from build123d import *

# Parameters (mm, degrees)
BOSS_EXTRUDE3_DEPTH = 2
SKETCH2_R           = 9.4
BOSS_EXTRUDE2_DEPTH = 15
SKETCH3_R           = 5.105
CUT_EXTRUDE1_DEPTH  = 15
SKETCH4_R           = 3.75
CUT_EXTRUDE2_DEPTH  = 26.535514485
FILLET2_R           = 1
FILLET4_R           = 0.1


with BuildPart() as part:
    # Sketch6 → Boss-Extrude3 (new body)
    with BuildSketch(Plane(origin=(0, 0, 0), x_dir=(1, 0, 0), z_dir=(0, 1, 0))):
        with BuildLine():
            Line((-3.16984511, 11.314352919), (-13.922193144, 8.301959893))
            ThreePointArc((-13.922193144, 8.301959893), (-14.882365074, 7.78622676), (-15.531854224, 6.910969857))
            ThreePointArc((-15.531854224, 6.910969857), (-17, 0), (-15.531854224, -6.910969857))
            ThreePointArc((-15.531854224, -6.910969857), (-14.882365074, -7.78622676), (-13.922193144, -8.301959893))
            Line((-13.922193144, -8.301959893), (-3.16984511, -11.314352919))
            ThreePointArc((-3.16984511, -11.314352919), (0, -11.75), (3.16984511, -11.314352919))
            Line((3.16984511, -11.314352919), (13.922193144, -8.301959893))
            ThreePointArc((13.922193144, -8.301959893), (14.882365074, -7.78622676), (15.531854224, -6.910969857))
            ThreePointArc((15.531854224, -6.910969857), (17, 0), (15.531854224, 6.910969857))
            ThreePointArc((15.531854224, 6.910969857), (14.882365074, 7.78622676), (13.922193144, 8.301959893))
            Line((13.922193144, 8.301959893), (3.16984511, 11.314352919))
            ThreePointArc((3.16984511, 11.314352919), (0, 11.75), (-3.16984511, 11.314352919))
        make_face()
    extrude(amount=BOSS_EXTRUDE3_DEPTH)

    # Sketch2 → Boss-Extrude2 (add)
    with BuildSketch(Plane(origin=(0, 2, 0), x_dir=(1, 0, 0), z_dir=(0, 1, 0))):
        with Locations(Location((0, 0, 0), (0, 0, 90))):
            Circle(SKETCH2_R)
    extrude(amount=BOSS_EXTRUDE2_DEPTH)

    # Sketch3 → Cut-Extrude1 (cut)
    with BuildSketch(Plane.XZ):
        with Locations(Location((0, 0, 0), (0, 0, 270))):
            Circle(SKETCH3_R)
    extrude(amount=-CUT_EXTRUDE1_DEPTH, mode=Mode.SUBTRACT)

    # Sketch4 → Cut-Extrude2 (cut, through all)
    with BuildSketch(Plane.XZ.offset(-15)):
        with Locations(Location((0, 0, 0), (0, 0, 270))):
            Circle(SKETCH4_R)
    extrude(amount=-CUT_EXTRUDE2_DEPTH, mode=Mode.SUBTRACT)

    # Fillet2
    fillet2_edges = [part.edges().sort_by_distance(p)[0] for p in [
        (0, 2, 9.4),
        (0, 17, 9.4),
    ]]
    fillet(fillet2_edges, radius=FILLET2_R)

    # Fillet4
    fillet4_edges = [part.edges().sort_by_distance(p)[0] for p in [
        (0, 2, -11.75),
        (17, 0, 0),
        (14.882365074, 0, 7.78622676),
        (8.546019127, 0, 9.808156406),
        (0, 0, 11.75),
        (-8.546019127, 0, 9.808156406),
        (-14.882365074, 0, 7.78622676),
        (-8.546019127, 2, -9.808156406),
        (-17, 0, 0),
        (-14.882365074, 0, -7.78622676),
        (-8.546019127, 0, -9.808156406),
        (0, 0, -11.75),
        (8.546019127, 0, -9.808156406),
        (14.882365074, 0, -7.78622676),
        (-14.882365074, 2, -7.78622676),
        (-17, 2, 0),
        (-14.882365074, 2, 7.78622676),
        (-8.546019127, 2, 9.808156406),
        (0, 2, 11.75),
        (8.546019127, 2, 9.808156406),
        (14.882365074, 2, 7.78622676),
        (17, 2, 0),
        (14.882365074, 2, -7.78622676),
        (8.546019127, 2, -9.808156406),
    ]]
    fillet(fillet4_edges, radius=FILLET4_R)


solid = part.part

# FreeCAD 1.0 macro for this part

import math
import FreeCAD as App
import Part
import Sketcher
Q = App.Units.Quantity


def edges_at(feature, points):
    """Names of the edges that pass closest to the given points."""
    edges = feature.Shape.Edges
    near = lambda p: min(range(len(edges)), key=lambda i: edges[i].distToShape(Part.Vertex(*p))[0])
    return sorted({f"Edge{near(p) + 1}" for p in points})

doc = App.newDocument("Part")
params = doc.addObject("Spreadsheet::Sheet", "Params")
for row, (alias, value) in enumerate([
    ("sketch1_radius", "17 mm"),
    ("sketch1_radius2", "2.5 mm"),
    ("sketch1_radius3", "11.75 mm"),
    ("pad1_length", "2 mm"),
    ("sketch2_diameter", "18.8 mm"),
    ("pad2_length", "15 mm"),
    ("sketch3_diameter", "10.21 mm"),
    ("pocket1_length", "15 mm"),
    ("sketch4_diameter", "7.5 mm"),
    ("fillet_radius", "1 mm"),
    ("fillet2_radius", "0.1 mm"),
], start=1):
    params.set(f"A{row}", alias)
    params.set(f"B{row}", "=" + value)
    params.setAlias(f"B{row}", alias)

body = doc.addObject("PartDesign::Body", "Body")

# Sketch on XZ plane
sketch1 = body.newObject("Sketcher::SketchObject", "Sketch")
sketch1.AttachmentSupport = (doc.getObject("XZ_Plane"), [""])
sketch1.MapMode = "FlatFace"
sketch1.addGeometry(Part.LineSegment(App.Vector(-3.2, -11.3, 0), App.Vector(-13.9, -8.3, 0)), False)
sketch1.addGeometry(Part.ArcOfCircle(Part.Circle(App.Vector(-13.2, -5.9, 0), App.Vector(0, 0, 1), 2.5), math.radians(-156), math.radians(-106)), False)
sketch1.addGeometry(Part.ArcOfCircle(Part.Circle(App.Vector(0, 0, 0), App.Vector(0, 0, 1), 17), math.radians(156), math.radians(204)), False)
sketch1.addGeometry(Part.ArcOfCircle(Part.Circle(App.Vector(-13.2, 5.9, 0), App.Vector(0, 0, 1), 2.5), math.radians(106), math.radians(156)), False)
sketch1.addGeometry(Part.LineSegment(App.Vector(-13.9, 8.3, 0), App.Vector(-3.2, 11.3, 0)), False)
sketch1.addGeometry(Part.ArcOfCircle(Part.Circle(App.Vector(0, 0, 0), App.Vector(0, 0, 1), 11.7), math.radians(74), math.radians(106)), False)
sketch1.addGeometry(Part.LineSegment(App.Vector(3.2, 11.3, 0), App.Vector(13.9, 8.3, 0)), False)
sketch1.addGeometry(Part.ArcOfCircle(Part.Circle(App.Vector(13.2, 5.9, 0), App.Vector(0, 0, 1), 2.5), math.radians(24), math.radians(74)), False)
sketch1.addGeometry(Part.ArcOfCircle(Part.Circle(App.Vector(0, 0, 0), App.Vector(0, 0, 1), 17), math.radians(-24), math.radians(24)), False)
sketch1.addGeometry(Part.ArcOfCircle(Part.Circle(App.Vector(13.2, -5.9, 0), App.Vector(0, 0, 1), 2.5), math.radians(-74), math.radians(-24)), False)
sketch1.addGeometry(Part.LineSegment(App.Vector(13.9, -8.3, 0), App.Vector(3.2, -11.3, 0)), False)
sketch1.addGeometry(Part.ArcOfCircle(Part.Circle(App.Vector(0, 0, 0), App.Vector(0, 0, 1), 11.7), math.radians(-106), math.radians(-74)), False)
sketch1.addConstraint(Sketcher.Constraint("Tangent", 0, 2, 1, 2))
sketch1.addConstraint(Sketcher.Constraint("Tangent", 1, 1, 2, 2))
sketch1.addConstraint(Sketcher.Constraint("Tangent", 2, 1, 3, 2))
sketch1.addConstraint(Sketcher.Constraint("Tangent", 3, 1, 4, 1))
sketch1.addConstraint(Sketcher.Constraint("Tangent", 4, 2, 5, 2))
sketch1.addConstraint(Sketcher.Constraint("Tangent", 5, 1, 6, 1))
sketch1.addConstraint(Sketcher.Constraint("Tangent", 6, 2, 7, 2))
sketch1.addConstraint(Sketcher.Constraint("Tangent", 7, 1, 8, 2))
sketch1.addConstraint(Sketcher.Constraint("Tangent", 8, 1, 9, 2))
sketch1.addConstraint(Sketcher.Constraint("Tangent", 9, 1, 10, 1))
sketch1.addConstraint(Sketcher.Constraint("Tangent", 10, 2, 11, 2))
sketch1.addConstraint(Sketcher.Constraint("Tangent", 11, 1, 0, 1))
sketch1.addConstraint(Sketcher.Constraint("Coincident", 2, 3, -1, 1))
sketch1.addConstraint(Sketcher.Constraint("Coincident", 5, 3, -1, 1))
sketch1.addConstraint(Sketcher.Constraint("Coincident", 8, 3, -1, 1))
sketch1.addConstraint(Sketcher.Constraint("Coincident", 11, 3, -1, 1))
sketch1.addConstraint(Sketcher.Constraint("Equal", 1, 3))
sketch1.addConstraint(Sketcher.Constraint("Equal", 3, 7))
sketch1.addConstraint(Sketcher.Constraint("Equal", 2, 8))
sketch1.addConstraint(Sketcher.Constraint("Equal", 7, 9))
sketch1.addConstraint(Sketcher.Constraint("Equal", 5, 11))
sketch1.addConstraint(Sketcher.Constraint("Parallel", 0, 6))
sketch1.addConstraint(Sketcher.Constraint("Parallel", 4, 10))
sketch1.addConstraint(Sketcher.Constraint("Horizontal", 3, 3, 7, 3))
sketch1.addConstraint(Sketcher.Constraint("Radius", 2, Q("17 mm")))
sketch1.addConstraint(Sketcher.Constraint("Radius", 1, Q("2.5 mm")))
sketch1.addConstraint(Sketcher.Constraint("Radius", 5, Q("11.75 mm")))
sketch1.addConstraint(Sketcher.Constraint("DistanceY", 1, 3, 3, 3, Q("11.789302 mm")))
sketch1.setExpression("Constraints[24]", "Params.sketch1_radius")
sketch1.setExpression("Constraints[25]", "Params.sketch1_radius2")
sketch1.setExpression("Constraints[26]", "Params.sketch1_radius3")
pad1 = body.newObject("PartDesign::Pad", "Pad")
pad1.Profile = sketch1
pad1.setExpression("Length", "Params.pad1_length")
pad1.Reversed = True

# Sketch on XZ plane
sketch2 = body.newObject("Sketcher::SketchObject", "Sketch001")
sketch2.AttachmentSupport = (doc.getObject("XZ_Plane"), [""])
sketch2.MapMode = "FlatFace"
sketch2.AttachmentOffset = App.Placement(App.Vector(0, 0, -2), App.Rotation())
sketch2.addGeometry(Part.Circle(App.Vector(0, 0, 0), App.Vector(0, 0, 1), 9), False)
sketch2.addConstraint(Sketcher.Constraint("Coincident", 0, 3, -1, 1))
sketch2.addConstraint(Sketcher.Constraint("Diameter", 0, Q("18.8 mm")))
sketch2.setExpression("Constraints[1]", "Params.sketch2_diameter")
pad2 = body.newObject("PartDesign::Pad", "Pad001")
pad2.Profile = sketch2
pad2.setExpression("Length", "Params.pad2_length")
pad2.Reversed = True

# Sketch on XZ plane
sketch3 = body.newObject("Sketcher::SketchObject", "Sketch002")
sketch3.AttachmentSupport = (doc.getObject("XZ_Plane"), [""])
sketch3.MapMode = "FlatFace"
sketch3.addGeometry(Part.Circle(App.Vector(0, 0, 0), App.Vector(0, 0, 1), 5), False)
sketch3.addConstraint(Sketcher.Constraint("Coincident", 0, 3, -1, 1))
sketch3.addConstraint(Sketcher.Constraint("Diameter", 0, Q("10.21 mm")))
sketch3.setExpression("Constraints[1]", "Params.sketch3_diameter")
pocket1 = body.newObject("PartDesign::Pocket", "Pocket")
pocket1.Profile = sketch3
pocket1.setExpression("Length", "Params.pocket1_length")

# Sketch on XZ plane
sketch4 = body.newObject("Sketcher::SketchObject", "Sketch003")
sketch4.AttachmentSupport = (doc.getObject("XZ_Plane"), [""])
sketch4.MapMode = "FlatFace"
sketch4.AttachmentOffset = App.Placement(App.Vector(0, 0, -15), App.Rotation())
sketch4.addGeometry(Part.Circle(App.Vector(0, 0, 0), App.Vector(0, 0, 1), 3.8), False)
sketch4.addConstraint(Sketcher.Constraint("Coincident", 0, 3, -1, 1))
sketch4.addConstraint(Sketcher.Constraint("Diameter", 0, Q("7.5 mm")))
sketch4.setExpression("Constraints[1]", "Params.sketch4_diameter")
pocket2 = body.newObject("PartDesign::Pocket", "Pocket001")
pocket2.Profile = sketch4
pocket2.Type = "ThroughAll"
doc.recompute()

fillet = body.newObject("PartDesign::Fillet", "Fillet")
fillet.Base = (pocket2, edges_at(pocket2, [(0, 2, 9.4), (0, 17, 9.4)]))
fillet.setExpression("Radius", "Params.fillet_radius")
doc.recompute()

fillet2 = body.newObject("PartDesign::Fillet", "Fillet001")
fillet2.Base = (fillet, edges_at(fillet, [
    (0, 2, -11.75),
    (17, 0, 0),
    (14.882, 0, 7.786),
    (8.546, 0, 9.808),
    (0, 0, 11.75),
    (-8.546, 0, 9.808),
    (-14.882, 0, 7.786),
    (-8.546, 2, -9.808),
    (-17, 0, 0),
    (-14.882, 0, -7.786),
    (-8.546, 0, -9.808),
    (0, 0, -11.75),
    (8.546, 0, -9.808),
    (14.882, 0, -7.786),
    (-14.882, 2, -7.786),
    (-17, 2, 0),
    (-14.882, 2, 7.786),
    (-8.546, 2, 9.808),
    (0, 2, 11.75),
    (8.546, 2, 9.808),
    (14.882, 2, 7.786),
    (17, 2, 0),
    (14.882, 2, -7.786),
    (8.546, 2, -9.808),
]))
fillet2.setExpression("Radius", "Params.fillet2_radius")

doc.recompute()
